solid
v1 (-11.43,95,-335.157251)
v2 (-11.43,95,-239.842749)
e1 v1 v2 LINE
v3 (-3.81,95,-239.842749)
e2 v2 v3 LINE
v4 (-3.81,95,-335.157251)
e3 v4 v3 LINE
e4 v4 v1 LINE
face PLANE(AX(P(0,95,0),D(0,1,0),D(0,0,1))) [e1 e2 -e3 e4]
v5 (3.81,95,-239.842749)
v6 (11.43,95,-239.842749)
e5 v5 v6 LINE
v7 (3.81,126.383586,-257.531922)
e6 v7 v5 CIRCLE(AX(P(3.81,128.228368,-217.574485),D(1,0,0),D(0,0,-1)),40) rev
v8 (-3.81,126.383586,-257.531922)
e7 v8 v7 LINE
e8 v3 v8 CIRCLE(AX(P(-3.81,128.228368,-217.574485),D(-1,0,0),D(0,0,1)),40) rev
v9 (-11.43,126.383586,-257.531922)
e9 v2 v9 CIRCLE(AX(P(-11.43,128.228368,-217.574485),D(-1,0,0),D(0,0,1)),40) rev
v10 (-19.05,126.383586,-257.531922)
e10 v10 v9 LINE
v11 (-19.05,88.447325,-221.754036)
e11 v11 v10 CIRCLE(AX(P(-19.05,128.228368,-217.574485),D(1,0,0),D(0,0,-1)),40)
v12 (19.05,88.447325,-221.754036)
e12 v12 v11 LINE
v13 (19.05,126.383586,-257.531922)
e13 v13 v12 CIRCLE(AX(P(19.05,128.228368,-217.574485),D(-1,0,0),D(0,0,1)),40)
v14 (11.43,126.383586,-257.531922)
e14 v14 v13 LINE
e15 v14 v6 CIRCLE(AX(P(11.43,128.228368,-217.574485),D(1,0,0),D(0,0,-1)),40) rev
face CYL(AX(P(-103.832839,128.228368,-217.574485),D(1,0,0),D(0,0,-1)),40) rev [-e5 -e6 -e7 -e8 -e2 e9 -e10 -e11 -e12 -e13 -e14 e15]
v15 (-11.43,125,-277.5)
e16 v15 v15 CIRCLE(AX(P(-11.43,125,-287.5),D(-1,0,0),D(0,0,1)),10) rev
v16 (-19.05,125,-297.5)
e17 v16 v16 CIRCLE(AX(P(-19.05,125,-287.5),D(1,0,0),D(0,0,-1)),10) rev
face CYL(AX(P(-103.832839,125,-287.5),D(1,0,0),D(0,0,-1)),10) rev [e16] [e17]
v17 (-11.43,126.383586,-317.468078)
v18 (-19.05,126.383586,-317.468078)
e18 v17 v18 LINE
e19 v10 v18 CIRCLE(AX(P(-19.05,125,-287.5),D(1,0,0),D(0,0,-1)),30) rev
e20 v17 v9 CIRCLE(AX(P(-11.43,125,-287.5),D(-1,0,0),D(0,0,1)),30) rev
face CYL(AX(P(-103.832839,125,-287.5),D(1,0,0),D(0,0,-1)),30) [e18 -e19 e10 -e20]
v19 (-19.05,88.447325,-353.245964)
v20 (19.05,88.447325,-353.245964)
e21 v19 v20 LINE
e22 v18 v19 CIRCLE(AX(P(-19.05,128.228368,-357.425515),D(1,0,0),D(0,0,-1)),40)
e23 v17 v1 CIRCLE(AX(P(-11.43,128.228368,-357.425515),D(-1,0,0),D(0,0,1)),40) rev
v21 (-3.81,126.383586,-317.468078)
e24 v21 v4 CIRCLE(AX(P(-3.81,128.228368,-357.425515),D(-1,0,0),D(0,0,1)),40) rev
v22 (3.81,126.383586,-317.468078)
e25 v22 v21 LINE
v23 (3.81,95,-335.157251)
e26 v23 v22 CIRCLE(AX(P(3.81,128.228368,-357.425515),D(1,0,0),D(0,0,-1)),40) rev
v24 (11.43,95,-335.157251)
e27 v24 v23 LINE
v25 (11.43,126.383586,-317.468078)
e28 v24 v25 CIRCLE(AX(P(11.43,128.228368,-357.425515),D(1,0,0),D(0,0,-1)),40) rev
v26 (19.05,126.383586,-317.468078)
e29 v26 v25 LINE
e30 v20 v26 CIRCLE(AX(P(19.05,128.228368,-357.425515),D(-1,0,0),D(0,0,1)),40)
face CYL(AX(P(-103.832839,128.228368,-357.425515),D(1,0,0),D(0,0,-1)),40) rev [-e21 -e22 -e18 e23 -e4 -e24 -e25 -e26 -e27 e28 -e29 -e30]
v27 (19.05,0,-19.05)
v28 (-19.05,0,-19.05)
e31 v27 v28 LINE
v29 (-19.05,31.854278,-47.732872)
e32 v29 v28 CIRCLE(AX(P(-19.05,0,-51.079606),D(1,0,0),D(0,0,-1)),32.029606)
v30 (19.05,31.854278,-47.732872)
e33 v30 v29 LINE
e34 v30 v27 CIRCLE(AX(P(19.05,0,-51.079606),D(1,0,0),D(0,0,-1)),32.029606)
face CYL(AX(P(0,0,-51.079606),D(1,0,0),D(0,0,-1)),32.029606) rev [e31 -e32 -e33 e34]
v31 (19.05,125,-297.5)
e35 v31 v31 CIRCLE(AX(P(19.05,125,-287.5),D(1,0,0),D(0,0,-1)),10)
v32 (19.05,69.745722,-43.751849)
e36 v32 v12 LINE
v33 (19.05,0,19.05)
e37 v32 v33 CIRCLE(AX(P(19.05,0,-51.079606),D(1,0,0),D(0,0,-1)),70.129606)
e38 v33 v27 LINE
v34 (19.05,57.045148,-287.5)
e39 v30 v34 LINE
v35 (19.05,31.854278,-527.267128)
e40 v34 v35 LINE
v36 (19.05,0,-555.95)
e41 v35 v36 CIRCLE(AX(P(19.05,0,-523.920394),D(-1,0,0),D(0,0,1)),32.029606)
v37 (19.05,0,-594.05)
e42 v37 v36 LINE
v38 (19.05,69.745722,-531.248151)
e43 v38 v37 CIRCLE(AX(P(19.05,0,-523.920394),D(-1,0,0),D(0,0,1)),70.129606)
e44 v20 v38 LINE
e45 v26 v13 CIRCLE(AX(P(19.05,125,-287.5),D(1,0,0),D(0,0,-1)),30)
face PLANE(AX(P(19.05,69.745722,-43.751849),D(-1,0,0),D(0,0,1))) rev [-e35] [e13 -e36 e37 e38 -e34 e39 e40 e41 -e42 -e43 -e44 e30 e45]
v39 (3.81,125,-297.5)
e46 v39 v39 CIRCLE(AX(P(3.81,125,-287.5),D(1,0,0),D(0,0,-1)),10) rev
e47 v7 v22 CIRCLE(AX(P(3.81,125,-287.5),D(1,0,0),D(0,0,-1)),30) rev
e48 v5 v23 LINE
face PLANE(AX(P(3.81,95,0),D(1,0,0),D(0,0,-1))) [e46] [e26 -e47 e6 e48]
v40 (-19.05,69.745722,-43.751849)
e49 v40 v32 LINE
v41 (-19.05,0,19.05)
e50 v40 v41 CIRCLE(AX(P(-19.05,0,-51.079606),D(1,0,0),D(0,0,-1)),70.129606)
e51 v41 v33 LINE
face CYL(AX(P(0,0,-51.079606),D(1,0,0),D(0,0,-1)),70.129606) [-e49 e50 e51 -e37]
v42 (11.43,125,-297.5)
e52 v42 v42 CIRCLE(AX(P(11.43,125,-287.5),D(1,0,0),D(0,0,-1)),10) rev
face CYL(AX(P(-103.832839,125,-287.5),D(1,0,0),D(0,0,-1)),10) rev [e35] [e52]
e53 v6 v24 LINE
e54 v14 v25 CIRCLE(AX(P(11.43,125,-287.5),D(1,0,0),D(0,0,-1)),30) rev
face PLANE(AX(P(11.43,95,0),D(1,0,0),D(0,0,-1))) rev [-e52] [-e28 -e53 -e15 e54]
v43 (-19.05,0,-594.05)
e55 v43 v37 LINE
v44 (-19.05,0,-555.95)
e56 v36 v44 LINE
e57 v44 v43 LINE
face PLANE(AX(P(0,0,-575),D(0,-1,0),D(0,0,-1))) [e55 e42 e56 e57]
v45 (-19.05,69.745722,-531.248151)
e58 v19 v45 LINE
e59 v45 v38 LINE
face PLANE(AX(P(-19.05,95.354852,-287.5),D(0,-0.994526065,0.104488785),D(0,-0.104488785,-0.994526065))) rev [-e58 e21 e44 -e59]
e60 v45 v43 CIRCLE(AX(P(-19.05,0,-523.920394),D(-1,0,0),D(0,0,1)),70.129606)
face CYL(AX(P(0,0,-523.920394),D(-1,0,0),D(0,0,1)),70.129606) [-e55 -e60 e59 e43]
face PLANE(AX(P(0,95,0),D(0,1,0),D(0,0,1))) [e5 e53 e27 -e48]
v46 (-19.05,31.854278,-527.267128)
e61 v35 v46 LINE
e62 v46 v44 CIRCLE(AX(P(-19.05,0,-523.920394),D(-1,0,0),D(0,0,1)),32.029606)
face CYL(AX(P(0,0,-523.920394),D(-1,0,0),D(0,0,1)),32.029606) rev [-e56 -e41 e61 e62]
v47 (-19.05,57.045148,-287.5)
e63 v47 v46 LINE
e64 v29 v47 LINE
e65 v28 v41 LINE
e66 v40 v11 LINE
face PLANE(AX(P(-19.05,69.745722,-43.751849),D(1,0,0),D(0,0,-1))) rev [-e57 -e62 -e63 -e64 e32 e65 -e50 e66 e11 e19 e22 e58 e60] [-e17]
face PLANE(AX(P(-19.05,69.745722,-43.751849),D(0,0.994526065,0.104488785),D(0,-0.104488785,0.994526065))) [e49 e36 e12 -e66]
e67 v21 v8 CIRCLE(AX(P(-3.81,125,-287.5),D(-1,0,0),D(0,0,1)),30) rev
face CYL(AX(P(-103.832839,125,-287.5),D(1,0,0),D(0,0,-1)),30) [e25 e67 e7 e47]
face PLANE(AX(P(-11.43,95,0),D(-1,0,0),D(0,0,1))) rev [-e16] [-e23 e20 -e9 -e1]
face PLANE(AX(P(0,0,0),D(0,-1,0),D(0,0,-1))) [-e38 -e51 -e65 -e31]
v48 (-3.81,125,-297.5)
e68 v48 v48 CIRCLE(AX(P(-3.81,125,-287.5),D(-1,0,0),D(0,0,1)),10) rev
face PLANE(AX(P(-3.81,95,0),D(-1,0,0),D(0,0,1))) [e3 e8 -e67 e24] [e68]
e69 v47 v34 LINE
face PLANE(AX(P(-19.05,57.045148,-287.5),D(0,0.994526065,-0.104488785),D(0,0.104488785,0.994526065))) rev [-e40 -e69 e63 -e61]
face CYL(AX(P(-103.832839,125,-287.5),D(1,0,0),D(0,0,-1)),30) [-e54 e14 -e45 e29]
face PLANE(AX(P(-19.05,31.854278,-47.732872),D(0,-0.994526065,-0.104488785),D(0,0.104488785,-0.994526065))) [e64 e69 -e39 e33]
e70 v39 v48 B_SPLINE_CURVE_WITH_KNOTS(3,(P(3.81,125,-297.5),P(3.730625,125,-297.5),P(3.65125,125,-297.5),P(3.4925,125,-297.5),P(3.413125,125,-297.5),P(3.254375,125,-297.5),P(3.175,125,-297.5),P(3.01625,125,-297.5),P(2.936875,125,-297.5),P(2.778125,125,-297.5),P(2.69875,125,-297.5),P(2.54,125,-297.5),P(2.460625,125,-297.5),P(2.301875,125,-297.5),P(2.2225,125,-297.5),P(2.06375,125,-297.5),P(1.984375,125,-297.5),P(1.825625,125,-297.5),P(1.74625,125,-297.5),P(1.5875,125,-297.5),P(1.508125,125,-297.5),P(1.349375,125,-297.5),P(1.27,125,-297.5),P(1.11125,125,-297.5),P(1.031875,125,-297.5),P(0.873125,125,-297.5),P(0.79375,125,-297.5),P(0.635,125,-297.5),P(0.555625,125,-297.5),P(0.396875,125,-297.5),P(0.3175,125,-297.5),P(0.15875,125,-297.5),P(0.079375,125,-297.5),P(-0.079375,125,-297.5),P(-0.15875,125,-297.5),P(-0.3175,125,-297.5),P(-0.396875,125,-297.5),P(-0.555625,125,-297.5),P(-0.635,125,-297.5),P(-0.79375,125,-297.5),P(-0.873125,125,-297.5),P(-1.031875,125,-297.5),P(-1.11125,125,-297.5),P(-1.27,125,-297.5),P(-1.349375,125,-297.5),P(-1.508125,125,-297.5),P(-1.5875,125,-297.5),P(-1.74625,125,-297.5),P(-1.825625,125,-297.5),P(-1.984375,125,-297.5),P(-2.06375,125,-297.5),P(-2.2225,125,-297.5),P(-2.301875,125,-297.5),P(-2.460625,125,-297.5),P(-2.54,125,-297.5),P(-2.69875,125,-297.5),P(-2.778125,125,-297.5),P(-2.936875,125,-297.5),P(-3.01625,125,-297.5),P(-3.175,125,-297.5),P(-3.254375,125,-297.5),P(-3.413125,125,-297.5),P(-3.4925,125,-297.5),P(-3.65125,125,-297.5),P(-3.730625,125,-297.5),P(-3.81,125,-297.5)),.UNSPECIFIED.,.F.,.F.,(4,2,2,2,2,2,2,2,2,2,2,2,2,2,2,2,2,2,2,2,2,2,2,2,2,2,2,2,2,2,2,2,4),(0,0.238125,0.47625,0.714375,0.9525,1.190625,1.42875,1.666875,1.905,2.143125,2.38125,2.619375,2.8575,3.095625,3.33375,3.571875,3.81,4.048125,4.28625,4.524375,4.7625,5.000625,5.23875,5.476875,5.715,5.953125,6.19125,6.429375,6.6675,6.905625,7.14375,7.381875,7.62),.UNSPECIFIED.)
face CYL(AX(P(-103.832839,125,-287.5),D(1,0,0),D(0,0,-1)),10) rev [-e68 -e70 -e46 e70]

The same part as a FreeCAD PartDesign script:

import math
import FreeCAD as App
import Part
import Sketcher
Q = App.Units.Quantity


def edges_at(feature, points):
    """Names of the edges that pass closest to the given points."""
    edges = feature.Shape.Edges
    near = lambda p: min(range(len(edges)), key=lambda i: edges[i].distToShape(Part.Vertex(*p))[0])
    return sorted({f"Edge{near(p) + 1}" for p in points})


def add_polygon(sketch, points):
    """Adds a closed chain of lines whose ends are joined by coincident constraints."""
    first, n = sketch.GeometryCount, len(points)
    for a, b in zip(points, points[1:] + points[:1]):
        sketch.addGeometry(Part.LineSegment(App.Vector(*a, 0), App.Vector(*b, 0)), False)
    for i in range(n):
        sketch.addConstraint(Sketcher.Constraint("Coincident", first + i, 2, first + (i + 1) % n, 1))

doc = App.newDocument("Part")
body = doc.addObject("PartDesign::Body", "Body")

# Sketch on XZ plane
sketch1 = doc.addObject("Sketcher::SketchObject", "Sketch")
body.addObject(sketch1)
sketch1.AttachmentSupport = (doc.XZ_Plane, [""])
sketch1.MapMode = "FlatFace"
add_polygon(sketch1, [(-19.05, -19.05), (-19.05, 19.05), (19.05, 19.05), (19.05, -19.05)])  # lines 0-3
sketch1.addConstraint([
    Sketcher.Constraint("Vertical", 0),
    Sketcher.Constraint("Horizontal", 1),
    Sketcher.Constraint("Vertical", 2),
    Sketcher.Constraint("Horizontal", 3),
    Sketcher.Constraint("Symmetric", 0, 2, 2, 2, -1, 1),
    Sketcher.Constraint("Equal", 3, 0),
    Sketcher.Constraint("DistanceX", 1, 1, 1, 2, Q("38.1 mm")),
])

# Sketch on YZ plane
sketch2 = doc.addObject("Sketcher::SketchObject", "Sketch001")
body.addObject(sketch2)
sketch2.AttachmentSupport = (doc.YZ_Plane, [""])
sketch2.MapMode = "FlatFace"
sketch2.addGeometry([
    Part.ArcOfCircle(Part.Circle(App.Vector(0, -51.079606, 0), App.Vector(0, 0, 1), 51.079606), math.radians(5.997714), math.radians(90)),
    Part.LineSegment(App.Vector(50.8, -45.74236, 0), App.Vector(76.2, -287.5, 0)),
    Part.LineSegment(App.Vector(76.2, -287.5, 0), App.Vector(50.8, -529.25764, 0)),
    Part.ArcOfCircle(Part.Circle(App.Vector(0, -523.920394, 0), App.Vector(0, 0, 1), 51.079606), math.radians(-90), math.radians(-5.997714)),
], False)
sketch2.addConstraint([
    Sketcher.Constraint("Tangent", 0, 1, 1, 1),
    Sketcher.Constraint("Coincident", 1, 2, 2, 1),
    Sketcher.Constraint("Tangent", 2, 2, 3, 2),
    Sketcher.Constraint("Coincident", 0, 2, -1, 1),
    Sketcher.Constraint("Equal", 0, 3),
    Sketcher.Constraint("PointOnObject", 0, 3, -2),
    Sketcher.Constraint("PointOnObject", 3, 3, -2),
    Sketcher.Constraint("PointOnObject", 3, 1, -2),
    Sketcher.Constraint("Equal", 1, 2),
    Sketcher.Constraint("DistanceY", 3, 1, -1, 1, Q("575 mm")),
    Sketcher.Constraint("DistanceX", -1, 1, 0, 1, Q("50.8 mm")),
    Sketcher.Constraint("DistanceX", -1, 1, 1, 2, Q("76.2 mm")),
])
doc.recompute()

additivepipe = doc.addObject("PartDesign::AdditivePipe", "AdditivePipe")
body.addObject(additivepipe)
additivepipe.Profile = sketch1
additivepipe.Spine = (sketch2, ["Edge1", "Edge2", "Edge3", "Edge4"])
additivepipe.Transition = "Right corner"

# Sketch on YZ plane
sketch3 = doc.addObject("Sketcher::SketchObject", "Sketch002")
body.addObject(sketch3)
sketch3.AttachmentSupport = (doc.YZ_Plane, [""])
sketch3.MapMode = "FlatFace"
sketch3.AttachmentOffset = App.Placement(App.Vector(0, 0, 19.05), App.Rotation())
sketch3.addGeometry([
    Part.ArcOfCircle(Part.Circle(App.Vector(125, -287.5, 0), App.Vector(0, 0, 1), 30), math.radians(-90), math.radians(175.343979)),  # 0
    Part.LineSegment(App.Vector(95.099, -285.064796, 0), App.Vector(95.354852, -287.5, 0)),  # 1
    Part.LineSegment(App.Vector(95.354852, -287.5, 0), App.Vector(95.099, -289.935204, 0)),  # 2
    Part.ArcOfCircle(Part.Circle(App.Vector(125, -287.5, 0), App.Vector(0, 0, 1), 30), math.radians(-175.343979), math.radians(-90)),  # 3
    Part.Circle(App.Vector(125, -287.5, 0), App.Vector(0, 0, 1), 10),  # 4
], False)
sketch3.addConstraint([
    Sketcher.Constraint("Coincident", 0, 2, 1, 1),
    Sketcher.Constraint("Coincident", 1, 2, 2, 1),
    Sketcher.Constraint("Coincident", 2, 2, 3, 1),
    Sketcher.Constraint("Tangent", 3, 2, 0, 1),
    Sketcher.Constraint("Coincident", 4, 3, 0, 3),
    Sketcher.Constraint("Equal", 0, 3),
    Sketcher.Constraint("Horizontal", 4, 3, 1, 2),
    Sketcher.Constraint("Vertical", 0, 2, 2, 2),
    Sketcher.Constraint("Vertical", 4, 3, 3, 2),
    Sketcher.Constraint("Diameter", 4, Q("20 mm")),
    Sketcher.Constraint("Radius", 0, Q("30 mm")),
    Sketcher.Constraint("DistanceX", -1, 1, 0, 3, Q("125 mm")),
    Sketcher.Constraint("DistanceY", 0, 3, -1, 1, Q("287.5 mm")),
    Sketcher.Constraint("DistanceX", -1, 1, 0, 2, Q("95.099 mm")),
    Sketcher.Constraint("Distance", 1, Q("2.448608 mm")),
])
pad1 = doc.addObject("PartDesign::Pad", "Pad")
body.addObject(pad1)
pad1.Profile = sketch3
pad1.Length = 38.1
pad1.Reversed = True
doc.recompute()

fillet = doc.addObject("PartDesign::Fillet", "Fillet")
body.addObject(fillet)
fillet.Base = (pad1, edges_at(pad1, [(0, 95.099, -289.935), (0, 95.099, -285.065)]))
fillet.Radius = 40

# Sketch on XZ plane
sketch4 = doc.addObject("Sketcher::SketchObject", "Sketch003")
body.addObject(sketch4)
sketch4.AttachmentSupport = (doc.XZ_Plane, [""])
sketch4.MapMode = "FlatFace"
sketch4.AttachmentOffset = App.Placement(App.Vector(0, 0, -155), App.Rotation())
add_polygon(sketch4, [(-3.81, -353.245964), (-11.43, -353.245964), (-11.43, -221.754036), (-3.81, -221.754036)])  # lines 0-3
add_polygon(sketch4, [(3.81, -353.245964), (3.81, -221.754036), (11.43, -221.754036), (11.43, -353.245964)])  # lines 4-7
sketch4.addConstraint([
    Sketcher.Constraint("Horizontal", 0),
    Sketcher.Constraint("Vertical", 1),
    Sketcher.Constraint("Horizontal", 2),
    Sketcher.Constraint("Vertical", 3),
    Sketcher.Constraint("Vertical", 4),
    Sketcher.Constraint("Horizontal", 5),
    Sketcher.Constraint("Vertical", 6),
    Sketcher.Constraint("Horizontal", 7),
    Sketcher.Constraint("Symmetric", 2, 2, 4, 2, -2),
    Sketcher.Constraint("Symmetric", 0, 2, 6, 2, -2),
    Sketcher.Constraint("DistanceX", 0, 2, 0, 1, Q("7.62 mm")),
    Sketcher.Constraint("DistanceX", 0, 2, -1, 1, Q("11.43 mm")),
    Sketcher.Constraint("DistanceY", 1, 1, 1, 2, Q("131.491927 mm")),
    Sketcher.Constraint("DistanceY", 0, 2, -1, 1, Q("353.245964 mm")),
])
pocket1 = doc.addObject("PartDesign::Pocket", "Pocket")
body.addObject(pocket1)
pocket1.Profile = sketch4
pocket1.Length = 60
pocket1.Reversed = True

doc.recompute()
